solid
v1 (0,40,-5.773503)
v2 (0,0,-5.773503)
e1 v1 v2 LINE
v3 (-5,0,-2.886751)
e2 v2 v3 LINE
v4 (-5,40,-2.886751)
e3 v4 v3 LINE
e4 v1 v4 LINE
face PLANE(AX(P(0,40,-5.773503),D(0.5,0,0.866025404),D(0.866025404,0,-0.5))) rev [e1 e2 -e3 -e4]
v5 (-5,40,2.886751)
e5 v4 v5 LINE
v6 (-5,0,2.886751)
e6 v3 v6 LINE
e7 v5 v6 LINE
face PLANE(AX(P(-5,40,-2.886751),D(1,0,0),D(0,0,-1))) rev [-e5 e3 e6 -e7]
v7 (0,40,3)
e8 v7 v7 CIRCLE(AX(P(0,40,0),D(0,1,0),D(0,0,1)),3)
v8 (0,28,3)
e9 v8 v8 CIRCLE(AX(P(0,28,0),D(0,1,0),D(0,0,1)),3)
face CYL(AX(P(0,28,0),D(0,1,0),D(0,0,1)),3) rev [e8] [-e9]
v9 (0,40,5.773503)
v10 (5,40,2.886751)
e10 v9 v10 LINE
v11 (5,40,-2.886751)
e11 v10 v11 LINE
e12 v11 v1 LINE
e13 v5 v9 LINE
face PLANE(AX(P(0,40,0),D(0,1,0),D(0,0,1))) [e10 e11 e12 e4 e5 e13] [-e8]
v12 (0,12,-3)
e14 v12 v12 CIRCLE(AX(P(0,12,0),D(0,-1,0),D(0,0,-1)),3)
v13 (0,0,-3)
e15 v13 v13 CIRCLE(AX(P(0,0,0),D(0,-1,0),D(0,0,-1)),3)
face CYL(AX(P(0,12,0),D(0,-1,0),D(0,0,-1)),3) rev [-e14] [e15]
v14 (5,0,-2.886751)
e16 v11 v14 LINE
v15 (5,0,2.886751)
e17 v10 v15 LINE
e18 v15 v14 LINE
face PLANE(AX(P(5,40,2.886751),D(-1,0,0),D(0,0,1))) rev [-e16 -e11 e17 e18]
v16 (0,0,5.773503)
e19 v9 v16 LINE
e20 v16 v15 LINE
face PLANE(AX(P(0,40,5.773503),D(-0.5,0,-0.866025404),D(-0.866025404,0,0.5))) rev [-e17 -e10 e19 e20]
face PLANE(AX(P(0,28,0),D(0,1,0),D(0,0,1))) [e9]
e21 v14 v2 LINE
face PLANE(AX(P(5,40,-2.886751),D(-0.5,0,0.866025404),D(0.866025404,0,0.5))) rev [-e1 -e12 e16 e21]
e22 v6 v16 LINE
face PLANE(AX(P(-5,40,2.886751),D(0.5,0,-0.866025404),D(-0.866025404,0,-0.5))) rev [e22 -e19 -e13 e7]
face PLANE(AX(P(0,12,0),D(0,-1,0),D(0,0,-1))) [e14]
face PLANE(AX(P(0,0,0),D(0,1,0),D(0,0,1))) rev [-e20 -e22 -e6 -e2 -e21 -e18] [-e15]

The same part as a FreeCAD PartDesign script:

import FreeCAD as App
import Part
import Sketcher

V = App.Vector
Q = App.Units.Quantity


def add_polygon(sketch, points):
    """Adds a closed chain of lines whose ends are joined by coincident constraints."""
    first, n = sketch.GeometryCount, len(points)
    for a, b in zip(points, points[1:] + points[:1]):
        sketch.addGeometry(Part.LineSegment(App.Vector(*a, 0), App.Vector(*b, 0)), False)
    for i in range(n):
        sketch.addConstraint(Sketcher.Constraint("Coincident", first + i, 2, first + (i + 1) % n, 1))

doc = App.newDocument("Part")
params = doc.addObject("Spreadsheet::Sheet", "Params")
for row, (alias, value) in enumerate([
    ("pad1_length", "40 mm"),
    ("sketch2_diameter", "6 mm"),
    ("pocket1_length", "12 mm"),
    ("sketch3_diameter", "6 mm"),
    ("pocket2_length", "12 mm"),
], start=1):
    params.set(f"A{row}", alias)
    params.set(f"B{row}", "=" + value)
    params.setAlias(f"B{row}", alias)

body = doc.addObject("PartDesign::Body", "Body")

sketch1 = body.newObject("Sketcher::SketchObject", "Sketch")
sketch1.AttachmentSupport = (doc.getObject("XZ_Plane"), [""])
sketch1.MapMode = "FlatFace"
add_polygon(sketch1, [(0, 5.773503), (5, 2.886751), (5, -2.886751), (0, -5.773503), (-5, -2.886751), (-5, 2.886751)])
sketch1.addConstraint(Sketcher.Constraint("Vertical", 1))
sketch1.addConstraint(Sketcher.Constraint("Vertical", 4))
sketch1.addConstraint(Sketcher.Constraint("Symmetric", 0, 2, 3, 2, -1, 1))
sketch1.addConstraint(Sketcher.Constraint("Symmetric", 2, 2, 5, 2, -1, 1))
sketch1.addConstraint(Sketcher.Constraint("PointOnObject", 2, 2, -2))
sketch1.addConstraint(Sketcher.Constraint("Parallel", 2, 5))
sketch1.addConstraint(Sketcher.Constraint("Horizontal", 1, 2, 3, 2))
sketch1.addConstraint(Sketcher.Constraint("Angle", 0, Q("-30 deg")))
sketch1.addConstraint(Sketcher.Constraint("DistanceX", -1, 1, 0, 2, Q("5 mm")))
sketch1.addConstraint(Sketcher.Constraint("DistanceY", 1, 2, 1, 1, Q("5.773503 mm")))
pad1 = body.newObject("PartDesign::Pad", "Pad")
pad1.Profile = sketch1
pad1.setExpression("Length", "Params.pad1_length")
pad1.Reversed = True

sketch2 = body.newObject("Sketcher::SketchObject", "Sketch001")
sketch2.AttachmentSupport = (doc.getObject("XZ_Plane"), [""])
sketch2.MapMode = "FlatFace"
sketch2.addGeometry(Part.Circle(V(0, 0, 0), V(0, 0, 1), 3), False)
sketch2.addConstraint(Sketcher.Constraint("Coincident", 0, 3, -1, 1))
sketch2.addConstraint(Sketcher.Constraint("Diameter", 0, Q("6 mm")))
sketch2.setExpression("Constraints[1]", "Params.sketch2_diameter")
pocket1 = body.newObject("PartDesign::Pocket", "Pocket")
pocket1.Profile = sketch2
pocket1.setExpression("Length", "Params.pocket1_length")

sketch3 = body.newObject("Sketcher::SketchObject", "Sketch002")
sketch3.AttachmentSupport = (doc.getObject("XZ_Plane"), [""])
sketch3.MapMode = "FlatFace"
sketch3.AttachmentOffset = App.Placement(V(0, 0, -40), App.Rotation())
sketch3.addGeometry(Part.Circle(V(0, 0, 0), V(0, 0, 1), 3), False)
sketch3.addConstraint(Sketcher.Constraint("Coincident", 0, 3, -1, 1))
sketch3.addConstraint(Sketcher.Constraint("Diameter", 0, Q("6 mm")))
sketch3.setExpression("Constraints[1]", "Params.sketch3_diameter")
pocket2 = body.newObject("PartDesign::Pocket", "Pocket001")
pocket2.Profile = sketch3
pocket2.setExpression("Length", "Params.pocket2_length")
pocket2.Reversed = True

doc.recompute()
